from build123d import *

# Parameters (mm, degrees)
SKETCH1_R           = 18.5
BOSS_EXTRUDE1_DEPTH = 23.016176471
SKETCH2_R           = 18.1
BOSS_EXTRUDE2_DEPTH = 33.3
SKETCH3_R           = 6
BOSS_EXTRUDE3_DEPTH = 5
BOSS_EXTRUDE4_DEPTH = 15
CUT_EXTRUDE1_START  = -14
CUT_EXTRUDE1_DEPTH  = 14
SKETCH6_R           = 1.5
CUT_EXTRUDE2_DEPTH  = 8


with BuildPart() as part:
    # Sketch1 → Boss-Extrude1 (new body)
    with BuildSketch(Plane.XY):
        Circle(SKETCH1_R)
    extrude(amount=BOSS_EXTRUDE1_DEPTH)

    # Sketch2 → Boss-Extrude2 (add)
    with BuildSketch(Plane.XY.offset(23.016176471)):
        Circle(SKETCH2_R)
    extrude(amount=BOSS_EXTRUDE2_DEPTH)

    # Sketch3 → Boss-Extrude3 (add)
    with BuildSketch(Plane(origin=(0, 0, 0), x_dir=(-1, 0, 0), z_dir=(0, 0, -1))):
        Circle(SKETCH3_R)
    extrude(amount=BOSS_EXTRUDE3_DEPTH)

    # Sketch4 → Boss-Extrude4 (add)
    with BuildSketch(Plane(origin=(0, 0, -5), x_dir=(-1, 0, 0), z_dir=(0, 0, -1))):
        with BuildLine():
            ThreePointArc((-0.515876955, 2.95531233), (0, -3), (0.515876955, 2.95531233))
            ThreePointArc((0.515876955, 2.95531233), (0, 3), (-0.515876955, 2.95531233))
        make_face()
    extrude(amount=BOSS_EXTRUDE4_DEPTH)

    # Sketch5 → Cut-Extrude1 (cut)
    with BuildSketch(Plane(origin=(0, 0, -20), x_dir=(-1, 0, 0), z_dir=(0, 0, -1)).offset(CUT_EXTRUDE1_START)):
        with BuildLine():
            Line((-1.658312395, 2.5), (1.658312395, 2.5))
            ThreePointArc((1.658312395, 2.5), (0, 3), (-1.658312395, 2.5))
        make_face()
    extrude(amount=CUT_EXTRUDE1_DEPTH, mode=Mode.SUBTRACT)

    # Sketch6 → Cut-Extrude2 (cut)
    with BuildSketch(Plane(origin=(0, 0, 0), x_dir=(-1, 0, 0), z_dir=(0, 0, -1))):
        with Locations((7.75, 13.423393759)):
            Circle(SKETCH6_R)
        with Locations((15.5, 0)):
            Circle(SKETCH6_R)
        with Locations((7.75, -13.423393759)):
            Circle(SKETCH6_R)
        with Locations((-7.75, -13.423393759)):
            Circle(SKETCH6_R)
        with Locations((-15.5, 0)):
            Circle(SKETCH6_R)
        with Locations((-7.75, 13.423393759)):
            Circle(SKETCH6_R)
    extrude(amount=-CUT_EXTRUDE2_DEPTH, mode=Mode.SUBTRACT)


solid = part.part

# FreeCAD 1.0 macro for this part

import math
import FreeCAD as App
import Part
import Sketcher

doc = App.newDocument("Part")
body = doc.addObject("PartDesign::Body", "Body")

sketch1 = body.newObject("Sketcher::SketchObject", "Sketch")
sketch1.AttachmentSupport = (doc.getObject("XY_Plane"), [""])
sketch1.MapMode = "FlatFace"
sketch1.addGeometry(Part.Circle(App.Vector(0, 0, 0), App.Vector(0, 0, 1), 18.5), False)
sketch1.addConstraint(Sketcher.Constraint("Coincident", 0, 3, -1, 1))
sketch1.addConstraint(Sketcher.Constraint("Diameter", 0, 37.0))
pad1 = body.newObject("PartDesign::Pad", "Pad")
pad1.Profile = sketch1
pad1.Length = 23.016176

sketch2 = body.newObject("Sketcher::SketchObject", "Sketch001")
sketch2.AttachmentSupport = (doc.getObject("XY_Plane"), [""])
sketch2.MapMode = "FlatFace"
sketch2.AttachmentOffset = App.Placement(App.Vector(0, 0, 23.016176), App.Rotation())
sketch2.addGeometry(Part.Circle(App.Vector(0, 0, 0), App.Vector(0, 0, 1), 18.1), False)
sketch2.addConstraint(Sketcher.Constraint("Coincident", 0, 3, -1, 1))
sketch2.addConstraint(Sketcher.Constraint("Diameter", 0, 36.2))
pad2 = body.newObject("PartDesign::Pad", "Pad001")
pad2.Profile = sketch2
pad2.Length = 33.3

sketch3 = body.newObject("Sketcher::SketchObject", "Sketch002")
sketch3.AttachmentSupport = (doc.getObject("XY_Plane"), [""])
sketch3.MapMode = "FlatFace"
sketch3.addGeometry(Part.Circle(App.Vector(0, 0, 0), App.Vector(0, 0, 1), 6), False)
sketch3.addConstraint(Sketcher.Constraint("Coincident", 0, 3, -1, 1))
sketch3.addConstraint(Sketcher.Constraint("Diameter", 0, 12.0))
pad3 = body.newObject("PartDesign::Pad", "Pad002")
pad3.Profile = sketch3
pad3.Length = 5
pad3.Reversed = True

sketch4 = body.newObject("Sketcher::SketchObject", "Sketch003")
sketch4.AttachmentSupport = (doc.getObject("XY_Plane"), [""])
sketch4.MapMode = "FlatFace"
sketch4.AttachmentOffset = App.Placement(App.Vector(0, 0, -5), App.Rotation())
sketch4.addGeometry(Part.ArcOfCircle(Part.Circle(App.Vector(0, 0, 0), App.Vector(0, 0, 1), 3), math.radians(99.901738), math.radians(440.098262)), False)
sketch4.addGeometry(Part.ArcOfCircle(Part.Circle(App.Vector(0, 0, 0), App.Vector(0, 0, 1), 3), math.radians(80.098262), math.radians(99.901738)), False)
sketch4.addConstraint(Sketcher.Constraint("Tangent", 0, 1, 1, 2))
sketch4.addConstraint(Sketcher.Constraint("Coincident", 1, 1, 0, 2))
sketch4.addConstraint(Sketcher.Constraint("Coincident", 0, 3, -1, 1))
sketch4.addConstraint(Sketcher.Constraint("Horizontal", 0, 1, 1, 1))
sketch4.addConstraint(Sketcher.Constraint("Radius", 0, 3.0))
sketch4.addConstraint(Sketcher.Constraint("DistanceX", 0, 1, -1, 1, 0.515877))
pad4 = body.newObject("PartDesign::Pad", "Pad003")
pad4.Profile = sketch4
pad4.Length = 15
pad4.Reversed = True

sketch5 = body.newObject("Sketcher::SketchObject", "Sketch004")
sketch5.AttachmentSupport = (doc.getObject("XY_Plane"), [""])
sketch5.MapMode = "FlatFace"
sketch5.AttachmentOffset = App.Placement(App.Vector(0, 0, -6), App.Rotation())
sketch5.addGeometry(Part.LineSegment(App.Vector(1.658312, 2.5, 0), App.Vector(-1.658312, 2.5, 0)), False)
sketch5.addGeometry(Part.ArcOfCircle(Part.Circle(App.Vector(0, 0, 0), App.Vector(0, 0, 1), 3), math.radians(56.44269), math.radians(123.55731)), False)
sketch5.addConstraint(Sketcher.Constraint("Coincident", 0, 1, 1, 1))
sketch5.addConstraint(Sketcher.Constraint("Coincident", 1, 2, 0, 2))
sketch5.addConstraint(Sketcher.Constraint("Horizontal", 0))
sketch5.addConstraint(Sketcher.Constraint("Coincident", 1, 3, -1, 1))
sketch5.addConstraint(Sketcher.Constraint("Radius", 1, 3.0))
sketch5.addConstraint(Sketcher.Constraint("DistanceY", -1, 1, 0, 1, 2.5))
pocket1 = body.newObject("PartDesign::Pocket", "Pocket")
pocket1.Profile = sketch5
pocket1.Length = 14

sketch6 = body.newObject("Sketcher::SketchObject", "Sketch005")
sketch6.AttachmentSupport = (doc.getObject("XY_Plane"), [""])
sketch6.MapMode = "FlatFace"
sketch6.addGeometry(Part.Circle(App.Vector(-7.75, 13.423394, 0), App.Vector(0, 0, 1), 1.5), False)
sketch6.addGeometry(Part.Circle(App.Vector(-15.5, 0, 0), App.Vector(0, 0, 1), 1.5), False)
sketch6.addGeometry(Part.Circle(App.Vector(-7.75, -13.423394, 0), App.Vector(0, 0, 1), 1.5), False)
sketch6.addGeometry(Part.Circle(App.Vector(7.75, -13.423394, 0), App.Vector(0, 0, 1), 1.5), False)
sketch6.addGeometry(Part.Circle(App.Vector(15.5, 0, 0), App.Vector(0, 0, 1), 1.5), False)
sketch6.addGeometry(Part.Circle(App.Vector(7.75, 13.423394, 0), App.Vector(0, 0, 1), 1.5), False)
sketch6.addConstraint(Sketcher.Constraint("Equal", 0, 1))
sketch6.addConstraint(Sketcher.Constraint("Equal", 1, 2))
sketch6.addConstraint(Sketcher.Constraint("Equal", 2, 3))
sketch6.addConstraint(Sketcher.Constraint("Equal", 3, 4))
sketch6.addConstraint(Sketcher.Constraint("Equal", 4, 5))
sketch6.addConstraint(Sketcher.Constraint("Symmetric", 0, 3, 3, 3, -1, 1))
sketch6.addConstraint(Sketcher.Constraint("Symmetric", 1, 3, 4, 3, -1, 1))
sketch6.addConstraint(Sketcher.Constraint("Symmetric", 2, 3, 5, 3, -1, 1))
sketch6.addConstraint(Sketcher.Constraint("Symmetric", 2, 3, 3, 3, -2))
sketch6.addConstraint(Sketcher.Constraint("PointOnObject", 1, 3, -1))
sketch6.addConstraint(Sketcher.Constraint("Diameter", 0, 3.0))
sketch6.addConstraint(Sketcher.Constraint("DistanceX", 1, 3, 4, 3, 31.0))
sketch6.addConstraint(Sketcher.Constraint("DistanceX", 2, 3, 3, 3, 15.5))
sketch6.addConstraint(Sketcher.Constraint("DistanceY", -1, 1, 0, 3, 13.423394))
pocket2 = body.newObject("PartDesign::Pocket", "Pocket001")
pocket2.Profile = sketch6
pocket2.Length = 8
pocket2.Reversed = True

doc.recompute()
